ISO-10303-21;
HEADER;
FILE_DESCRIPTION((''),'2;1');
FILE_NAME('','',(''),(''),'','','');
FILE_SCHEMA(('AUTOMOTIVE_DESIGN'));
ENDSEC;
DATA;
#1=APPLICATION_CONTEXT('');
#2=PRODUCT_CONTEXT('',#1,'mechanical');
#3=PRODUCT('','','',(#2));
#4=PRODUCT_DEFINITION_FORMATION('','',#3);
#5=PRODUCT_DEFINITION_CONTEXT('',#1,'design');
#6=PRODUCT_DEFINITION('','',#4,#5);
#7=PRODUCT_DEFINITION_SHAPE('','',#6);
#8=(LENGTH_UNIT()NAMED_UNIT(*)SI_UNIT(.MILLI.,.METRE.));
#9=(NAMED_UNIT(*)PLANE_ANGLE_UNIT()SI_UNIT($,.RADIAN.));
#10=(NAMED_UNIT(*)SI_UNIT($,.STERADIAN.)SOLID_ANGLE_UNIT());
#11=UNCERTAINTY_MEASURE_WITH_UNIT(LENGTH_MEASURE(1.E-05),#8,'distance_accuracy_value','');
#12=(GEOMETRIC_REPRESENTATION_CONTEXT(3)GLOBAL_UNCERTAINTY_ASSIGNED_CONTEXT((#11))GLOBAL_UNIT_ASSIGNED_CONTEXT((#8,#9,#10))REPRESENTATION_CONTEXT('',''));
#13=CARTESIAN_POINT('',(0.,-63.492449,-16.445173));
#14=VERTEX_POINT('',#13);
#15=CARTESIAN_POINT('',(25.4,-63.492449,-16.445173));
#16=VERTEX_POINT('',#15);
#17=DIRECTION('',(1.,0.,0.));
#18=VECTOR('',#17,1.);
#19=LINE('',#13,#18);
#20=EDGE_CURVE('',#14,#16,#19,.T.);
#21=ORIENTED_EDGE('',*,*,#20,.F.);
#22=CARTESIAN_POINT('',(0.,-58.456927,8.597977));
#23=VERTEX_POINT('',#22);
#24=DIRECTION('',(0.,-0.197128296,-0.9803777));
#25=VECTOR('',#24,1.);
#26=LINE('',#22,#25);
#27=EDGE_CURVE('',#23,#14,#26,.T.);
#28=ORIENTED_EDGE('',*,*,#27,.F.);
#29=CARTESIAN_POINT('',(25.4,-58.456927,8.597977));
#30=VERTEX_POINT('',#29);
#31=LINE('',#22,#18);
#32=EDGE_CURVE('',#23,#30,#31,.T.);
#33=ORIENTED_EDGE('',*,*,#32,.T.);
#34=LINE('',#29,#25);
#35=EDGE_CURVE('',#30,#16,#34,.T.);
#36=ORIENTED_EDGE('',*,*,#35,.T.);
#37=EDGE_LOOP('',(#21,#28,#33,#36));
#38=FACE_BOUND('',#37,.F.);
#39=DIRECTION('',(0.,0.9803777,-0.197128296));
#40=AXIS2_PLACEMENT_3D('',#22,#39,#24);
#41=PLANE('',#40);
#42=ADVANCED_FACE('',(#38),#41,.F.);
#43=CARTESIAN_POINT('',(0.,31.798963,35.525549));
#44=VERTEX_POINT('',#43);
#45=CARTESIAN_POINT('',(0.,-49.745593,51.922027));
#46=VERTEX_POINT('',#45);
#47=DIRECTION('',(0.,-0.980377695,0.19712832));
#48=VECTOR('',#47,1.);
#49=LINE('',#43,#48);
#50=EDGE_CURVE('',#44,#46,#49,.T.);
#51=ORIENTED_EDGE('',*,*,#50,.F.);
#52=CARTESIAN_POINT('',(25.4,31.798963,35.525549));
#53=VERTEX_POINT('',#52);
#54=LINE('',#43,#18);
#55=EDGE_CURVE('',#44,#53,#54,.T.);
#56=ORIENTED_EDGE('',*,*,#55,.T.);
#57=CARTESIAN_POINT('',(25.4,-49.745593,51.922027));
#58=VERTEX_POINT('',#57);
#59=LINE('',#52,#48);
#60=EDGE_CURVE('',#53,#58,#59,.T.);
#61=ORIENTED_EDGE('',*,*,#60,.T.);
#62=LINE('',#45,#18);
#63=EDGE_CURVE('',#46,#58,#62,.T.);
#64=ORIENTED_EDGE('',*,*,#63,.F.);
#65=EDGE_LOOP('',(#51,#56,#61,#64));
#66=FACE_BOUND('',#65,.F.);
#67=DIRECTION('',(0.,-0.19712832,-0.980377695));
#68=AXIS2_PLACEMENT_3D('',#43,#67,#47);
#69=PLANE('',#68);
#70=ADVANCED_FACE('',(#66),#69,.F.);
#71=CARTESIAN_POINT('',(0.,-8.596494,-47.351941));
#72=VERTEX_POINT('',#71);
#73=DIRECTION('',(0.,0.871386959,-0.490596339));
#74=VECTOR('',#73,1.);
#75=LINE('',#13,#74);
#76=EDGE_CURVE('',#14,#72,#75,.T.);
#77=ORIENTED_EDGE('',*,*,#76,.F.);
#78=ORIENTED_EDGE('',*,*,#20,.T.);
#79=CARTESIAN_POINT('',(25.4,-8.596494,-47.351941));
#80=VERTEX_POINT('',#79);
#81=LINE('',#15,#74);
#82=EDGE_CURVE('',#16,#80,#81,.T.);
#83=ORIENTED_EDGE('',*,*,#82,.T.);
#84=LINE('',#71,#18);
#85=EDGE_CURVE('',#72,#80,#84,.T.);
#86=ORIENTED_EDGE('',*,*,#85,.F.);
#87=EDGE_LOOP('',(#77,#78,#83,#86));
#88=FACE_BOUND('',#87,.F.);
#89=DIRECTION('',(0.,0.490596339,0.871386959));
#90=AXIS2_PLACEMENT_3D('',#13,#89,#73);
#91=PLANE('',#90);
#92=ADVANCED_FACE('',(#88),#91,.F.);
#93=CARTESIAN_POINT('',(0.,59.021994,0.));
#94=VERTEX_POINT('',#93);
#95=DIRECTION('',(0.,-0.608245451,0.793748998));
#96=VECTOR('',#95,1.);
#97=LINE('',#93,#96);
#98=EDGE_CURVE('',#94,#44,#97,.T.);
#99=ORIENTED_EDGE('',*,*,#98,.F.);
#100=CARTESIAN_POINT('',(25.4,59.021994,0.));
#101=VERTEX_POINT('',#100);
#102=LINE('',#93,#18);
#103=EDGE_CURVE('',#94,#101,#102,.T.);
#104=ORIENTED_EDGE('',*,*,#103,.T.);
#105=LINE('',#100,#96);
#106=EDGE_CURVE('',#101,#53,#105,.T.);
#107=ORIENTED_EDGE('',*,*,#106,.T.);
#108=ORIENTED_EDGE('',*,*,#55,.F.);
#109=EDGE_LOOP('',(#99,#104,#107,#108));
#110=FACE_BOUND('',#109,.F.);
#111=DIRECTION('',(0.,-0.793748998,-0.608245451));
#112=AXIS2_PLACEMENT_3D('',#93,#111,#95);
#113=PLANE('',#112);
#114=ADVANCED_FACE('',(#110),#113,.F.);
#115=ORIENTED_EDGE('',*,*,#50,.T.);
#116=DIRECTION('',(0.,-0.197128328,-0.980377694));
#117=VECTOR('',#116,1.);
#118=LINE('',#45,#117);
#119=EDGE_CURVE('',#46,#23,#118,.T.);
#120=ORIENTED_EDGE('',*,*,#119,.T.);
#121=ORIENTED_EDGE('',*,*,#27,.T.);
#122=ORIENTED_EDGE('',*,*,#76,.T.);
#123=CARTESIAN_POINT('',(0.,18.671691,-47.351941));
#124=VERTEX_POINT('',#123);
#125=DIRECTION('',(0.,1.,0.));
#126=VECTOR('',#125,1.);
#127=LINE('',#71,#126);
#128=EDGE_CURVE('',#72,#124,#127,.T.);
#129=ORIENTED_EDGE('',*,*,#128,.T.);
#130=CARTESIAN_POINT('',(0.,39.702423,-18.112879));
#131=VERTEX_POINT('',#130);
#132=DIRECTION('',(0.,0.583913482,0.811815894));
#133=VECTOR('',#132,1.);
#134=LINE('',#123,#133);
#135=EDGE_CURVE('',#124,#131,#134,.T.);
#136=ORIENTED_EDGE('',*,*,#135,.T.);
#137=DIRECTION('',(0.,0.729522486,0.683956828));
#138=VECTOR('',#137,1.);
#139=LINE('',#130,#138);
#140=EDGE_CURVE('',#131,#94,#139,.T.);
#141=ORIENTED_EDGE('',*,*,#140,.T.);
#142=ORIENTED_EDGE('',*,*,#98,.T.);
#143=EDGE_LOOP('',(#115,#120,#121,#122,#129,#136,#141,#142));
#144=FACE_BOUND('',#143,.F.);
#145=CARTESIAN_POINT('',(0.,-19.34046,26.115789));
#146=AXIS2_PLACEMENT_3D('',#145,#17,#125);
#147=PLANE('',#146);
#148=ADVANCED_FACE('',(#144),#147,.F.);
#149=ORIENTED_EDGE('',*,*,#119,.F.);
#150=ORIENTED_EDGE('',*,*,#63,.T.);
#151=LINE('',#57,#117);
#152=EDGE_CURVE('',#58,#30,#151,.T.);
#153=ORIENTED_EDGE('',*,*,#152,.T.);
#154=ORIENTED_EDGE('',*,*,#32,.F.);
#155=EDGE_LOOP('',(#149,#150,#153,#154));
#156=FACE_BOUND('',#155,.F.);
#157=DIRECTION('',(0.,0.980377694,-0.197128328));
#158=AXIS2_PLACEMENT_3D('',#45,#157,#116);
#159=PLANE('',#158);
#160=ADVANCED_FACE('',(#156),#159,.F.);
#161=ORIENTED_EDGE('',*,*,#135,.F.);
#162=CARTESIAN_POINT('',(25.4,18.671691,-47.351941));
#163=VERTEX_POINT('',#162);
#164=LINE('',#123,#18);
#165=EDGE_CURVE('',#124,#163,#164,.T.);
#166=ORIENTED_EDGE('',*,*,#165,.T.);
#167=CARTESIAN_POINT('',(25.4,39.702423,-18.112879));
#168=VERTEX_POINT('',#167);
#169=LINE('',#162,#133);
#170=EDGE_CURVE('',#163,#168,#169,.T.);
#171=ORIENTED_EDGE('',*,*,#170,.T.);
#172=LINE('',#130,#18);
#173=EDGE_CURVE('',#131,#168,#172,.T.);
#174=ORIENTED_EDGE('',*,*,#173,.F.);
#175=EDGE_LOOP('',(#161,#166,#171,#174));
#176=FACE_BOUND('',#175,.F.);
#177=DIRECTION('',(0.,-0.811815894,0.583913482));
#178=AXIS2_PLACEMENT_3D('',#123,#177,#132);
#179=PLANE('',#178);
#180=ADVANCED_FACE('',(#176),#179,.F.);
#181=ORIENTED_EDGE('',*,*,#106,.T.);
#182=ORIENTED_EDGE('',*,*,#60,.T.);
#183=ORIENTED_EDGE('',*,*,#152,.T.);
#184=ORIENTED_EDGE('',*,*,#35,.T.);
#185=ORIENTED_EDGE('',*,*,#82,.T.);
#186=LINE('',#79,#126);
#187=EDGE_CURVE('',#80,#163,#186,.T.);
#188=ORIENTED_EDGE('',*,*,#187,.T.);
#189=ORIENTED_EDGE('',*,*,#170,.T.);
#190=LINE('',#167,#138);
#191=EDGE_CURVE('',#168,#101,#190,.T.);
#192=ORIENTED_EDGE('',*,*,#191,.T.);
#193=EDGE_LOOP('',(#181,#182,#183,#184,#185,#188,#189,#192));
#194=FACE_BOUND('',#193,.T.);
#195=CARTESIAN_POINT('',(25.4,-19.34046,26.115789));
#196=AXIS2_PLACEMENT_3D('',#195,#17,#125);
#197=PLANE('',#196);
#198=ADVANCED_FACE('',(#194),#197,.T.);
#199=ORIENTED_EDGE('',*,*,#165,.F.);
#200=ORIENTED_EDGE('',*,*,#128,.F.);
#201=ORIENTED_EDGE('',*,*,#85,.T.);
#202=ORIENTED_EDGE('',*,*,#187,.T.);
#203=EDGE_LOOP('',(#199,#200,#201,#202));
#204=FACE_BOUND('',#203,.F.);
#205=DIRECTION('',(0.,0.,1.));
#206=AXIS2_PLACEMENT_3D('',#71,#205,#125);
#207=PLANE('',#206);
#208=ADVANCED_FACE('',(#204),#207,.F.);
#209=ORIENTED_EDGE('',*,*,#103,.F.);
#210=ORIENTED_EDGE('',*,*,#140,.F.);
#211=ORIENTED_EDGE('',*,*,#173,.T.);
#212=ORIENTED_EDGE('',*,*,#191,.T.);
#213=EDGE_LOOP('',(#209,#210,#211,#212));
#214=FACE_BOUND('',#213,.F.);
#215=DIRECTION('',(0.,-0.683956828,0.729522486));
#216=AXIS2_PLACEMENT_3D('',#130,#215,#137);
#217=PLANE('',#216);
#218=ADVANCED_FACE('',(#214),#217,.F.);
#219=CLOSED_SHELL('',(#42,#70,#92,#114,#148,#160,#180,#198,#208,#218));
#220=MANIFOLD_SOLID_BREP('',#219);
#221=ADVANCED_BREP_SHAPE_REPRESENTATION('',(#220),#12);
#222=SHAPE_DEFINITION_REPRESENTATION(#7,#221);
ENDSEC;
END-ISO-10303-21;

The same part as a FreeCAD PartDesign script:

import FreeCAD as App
import Part
import Sketcher
from FreeCAD import Vector
Q = App.Units.Quantity

doc = App.newDocument("Part")
body = doc.addObject("PartDesign::Body", "Body")

sketch1 = body.newObject("Sketcher::SketchObject", "Sketch")
sketch1.AttachmentSupport = (doc.getObject("YZ_Plane"), [""])
sketch1.MapMode = "FlatFace"
sketch1.addGeometry(Part.LineSegment(Vector(32, 36, 0), Vector(-50, 52, 0)), False)
sketch1.addGeometry(Part.LineSegment(Vector(-50, 52, 0), Vector(-58, 9, 0)), False)
sketch1.addGeometry(Part.LineSegment(Vector(-58, 9, 0), Vector(-63, -16, 0)), False)
sketch1.addGeometry(Part.LineSegment(Vector(-63, -16, 0), Vector(-9, -47, 0)), False)
sketch1.addGeometry(Part.LineSegment(Vector(-9, -47, 0), Vector(19, -47, 0)), False)
sketch1.addGeometry(Part.LineSegment(Vector(19, -47, 0), Vector(40, -18, 0)), False)
sketch1.addGeometry(Part.LineSegment(Vector(40, -18, 0), Vector(59, 0, 0)), False)
sketch1.addGeometry(Part.LineSegment(Vector(59, 0, 0), Vector(32, 36, 0)), False)
sketch1.addConstraint(Sketcher.Constraint("Coincident", 0, 2, 1, 1))
sketch1.addConstraint(Sketcher.Constraint("Coincident", 1, 2, 2, 1))
sketch1.addConstraint(Sketcher.Constraint("Coincident", 2, 2, 3, 1))
sketch1.addConstraint(Sketcher.Constraint("Coincident", 3, 2, 4, 1))
sketch1.addConstraint(Sketcher.Constraint("Coincident", 4, 2, 5, 1))
sketch1.addConstraint(Sketcher.Constraint("Coincident", 5, 2, 6, 1))
sketch1.addConstraint(Sketcher.Constraint("Coincident", 6, 2, 7, 1))
sketch1.addConstraint(Sketcher.Constraint("Coincident", 7, 2, 0, 1))
sketch1.addConstraint(Sketcher.Constraint("Horizontal", 4))
sketch1.addConstraint(Sketcher.Constraint("PointOnObject", 6, 2, -1))
sketch1.addConstraint(Sketcher.Constraint("Perpendicular", 0, 1))
sketch1.addConstraint(Sketcher.Constraint("Parallel", 1, 2))
sketch1.addConstraint(Sketcher.Constraint("DistanceY", 2, 2, 0, 2, Q("68.3672 mm")))
sketch1.addConstraint(Sketcher.Constraint("DistanceX", 0, 2, 3, 2, Q("41.149099 mm")))
sketch1.addConstraint(Sketcher.Constraint("Distance", 2, Q("25.54439 mm")))
sketch1.addConstraint(Sketcher.Constraint("Distance", 6, Q("26.482489 mm")))
sketch1.addConstraint(Sketcher.Constraint("DistanceX", 4, 1, 4, 2, Q("27.268185 mm")))
sketch1.addConstraint(Sketcher.Constraint("DistanceX", 2, 2, -1, 1, Q("63.492449 mm")))
sketch1.addConstraint(Sketcher.Constraint("DistanceY", 3, 2, -1, 1, Q("47.351941 mm")))
sketch1.addConstraint(Sketcher.Constraint("DistanceX", -1, 1, 4, 2, Q("18.671691 mm")))
sketch1.addConstraint(Sketcher.Constraint("DistanceY", 5, 2, -1, 1, Q("18.112879 mm")))
sketch1.addConstraint(Sketcher.Constraint("DistanceY", -1, 1, 7, 2, Q("35.525549 mm")))
sketch1.addConstraint(Sketcher.Constraint("DistanceX", 1, 2, 5, 2, Q("98.15935 mm")))
sketch1.addConstraint(Sketcher.Constraint("DistanceX", 7, 2, 6, 2, Q("27.223031 mm")))
pad1 = body.newObject("PartDesign::Pad", "Pad")
pad1.Profile = sketch1
pad1.Length = Q("1 in")

doc.recompute()
